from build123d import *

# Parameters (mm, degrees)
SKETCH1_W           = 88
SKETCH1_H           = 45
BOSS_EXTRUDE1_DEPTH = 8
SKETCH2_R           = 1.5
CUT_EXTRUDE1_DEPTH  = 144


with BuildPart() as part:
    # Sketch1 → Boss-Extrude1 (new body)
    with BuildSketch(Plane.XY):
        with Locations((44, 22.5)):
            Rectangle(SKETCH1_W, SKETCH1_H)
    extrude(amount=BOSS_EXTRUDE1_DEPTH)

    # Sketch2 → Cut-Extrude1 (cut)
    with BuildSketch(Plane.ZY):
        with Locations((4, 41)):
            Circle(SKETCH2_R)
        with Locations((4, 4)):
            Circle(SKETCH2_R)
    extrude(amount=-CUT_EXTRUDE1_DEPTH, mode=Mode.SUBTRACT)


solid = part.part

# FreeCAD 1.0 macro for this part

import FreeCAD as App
import Part
import Sketcher
Q = App.Units.Quantity

doc = App.newDocument("Part")
body = doc.addObject("PartDesign::Body", "Body")

# Sketch on XY plane
sketch1 = body.newObject("Sketcher::SketchObject", "Sketch")
sketch1.AttachmentSupport = (doc.getObject("XY_Plane"), [""])
sketch1.MapMode = "FlatFace"
sketch1.addGeometry([
    Part.LineSegment(App.Vector(0, 45, 0), App.Vector(0, 0, 0)),
    Part.LineSegment(App.Vector(0, 0, 0), App.Vector(88, 0, 0)),
    Part.LineSegment(App.Vector(88, 0, 0), App.Vector(88, 45, 0)),
    Part.LineSegment(App.Vector(88, 45, 0), App.Vector(0, 45, 0)),
], False)
sketch1.addConstraint([
    Sketcher.Constraint("Coincident", 0, 2, 1, 1),
    Sketcher.Constraint("Coincident", 1, 2, 2, 1),
    Sketcher.Constraint("Coincident", 2, 2, 3, 1),
    Sketcher.Constraint("Coincident", 3, 2, 0, 1),
    Sketcher.Constraint("Vertical", 0),
    Sketcher.Constraint("Horizontal", 1),
    Sketcher.Constraint("Vertical", 2),
    Sketcher.Constraint("Horizontal", 3),
    Sketcher.Constraint("Coincident", 0, 2, -1, 1),
    Sketcher.Constraint("DistanceX", 1, 1, 1, 2, Q("88 mm")),
    Sketcher.Constraint("DistanceY", 0, 2, 0, 1, Q("45 mm")),
])
pad1 = body.newObject("PartDesign::Pad", "Pad")
pad1.Profile = sketch1
pad1.Length = 8

# Sketch on YZ plane
sketch2 = body.newObject("Sketcher::SketchObject", "Sketch001")
sketch2.AttachmentSupport = (doc.getObject("YZ_Plane"), [""])
sketch2.MapMode = "FlatFace"
sketch2.addGeometry([
    Part.Circle(App.Vector(41, 4, 0), App.Vector(0, 0, 1), 1.5),
    Part.Circle(App.Vector(4, 4, 0), App.Vector(0, 0, 1), 1.5),
], False)
sketch2.addConstraint([
    Sketcher.Constraint("Equal", 0, 1),
    Sketcher.Constraint("Horizontal", 0, 3, 1, 3),
    Sketcher.Constraint("Diameter", 0, Q("3 mm")),
    Sketcher.Constraint("DistanceX", -1, 1, 0, 3, Q("41 mm")),
    Sketcher.Constraint("DistanceY", -1, 1, 0, 3, Q("4 mm")),
    Sketcher.Constraint("DistanceX", -1, 1, 1, 3, Q("4 mm")),
])
pocket1 = body.newObject("PartDesign::Pocket", "Pocket")
pocket1.Profile = sketch2
pocket1.Length = 144
pocket1.Reversed = True

doc.recompute()
